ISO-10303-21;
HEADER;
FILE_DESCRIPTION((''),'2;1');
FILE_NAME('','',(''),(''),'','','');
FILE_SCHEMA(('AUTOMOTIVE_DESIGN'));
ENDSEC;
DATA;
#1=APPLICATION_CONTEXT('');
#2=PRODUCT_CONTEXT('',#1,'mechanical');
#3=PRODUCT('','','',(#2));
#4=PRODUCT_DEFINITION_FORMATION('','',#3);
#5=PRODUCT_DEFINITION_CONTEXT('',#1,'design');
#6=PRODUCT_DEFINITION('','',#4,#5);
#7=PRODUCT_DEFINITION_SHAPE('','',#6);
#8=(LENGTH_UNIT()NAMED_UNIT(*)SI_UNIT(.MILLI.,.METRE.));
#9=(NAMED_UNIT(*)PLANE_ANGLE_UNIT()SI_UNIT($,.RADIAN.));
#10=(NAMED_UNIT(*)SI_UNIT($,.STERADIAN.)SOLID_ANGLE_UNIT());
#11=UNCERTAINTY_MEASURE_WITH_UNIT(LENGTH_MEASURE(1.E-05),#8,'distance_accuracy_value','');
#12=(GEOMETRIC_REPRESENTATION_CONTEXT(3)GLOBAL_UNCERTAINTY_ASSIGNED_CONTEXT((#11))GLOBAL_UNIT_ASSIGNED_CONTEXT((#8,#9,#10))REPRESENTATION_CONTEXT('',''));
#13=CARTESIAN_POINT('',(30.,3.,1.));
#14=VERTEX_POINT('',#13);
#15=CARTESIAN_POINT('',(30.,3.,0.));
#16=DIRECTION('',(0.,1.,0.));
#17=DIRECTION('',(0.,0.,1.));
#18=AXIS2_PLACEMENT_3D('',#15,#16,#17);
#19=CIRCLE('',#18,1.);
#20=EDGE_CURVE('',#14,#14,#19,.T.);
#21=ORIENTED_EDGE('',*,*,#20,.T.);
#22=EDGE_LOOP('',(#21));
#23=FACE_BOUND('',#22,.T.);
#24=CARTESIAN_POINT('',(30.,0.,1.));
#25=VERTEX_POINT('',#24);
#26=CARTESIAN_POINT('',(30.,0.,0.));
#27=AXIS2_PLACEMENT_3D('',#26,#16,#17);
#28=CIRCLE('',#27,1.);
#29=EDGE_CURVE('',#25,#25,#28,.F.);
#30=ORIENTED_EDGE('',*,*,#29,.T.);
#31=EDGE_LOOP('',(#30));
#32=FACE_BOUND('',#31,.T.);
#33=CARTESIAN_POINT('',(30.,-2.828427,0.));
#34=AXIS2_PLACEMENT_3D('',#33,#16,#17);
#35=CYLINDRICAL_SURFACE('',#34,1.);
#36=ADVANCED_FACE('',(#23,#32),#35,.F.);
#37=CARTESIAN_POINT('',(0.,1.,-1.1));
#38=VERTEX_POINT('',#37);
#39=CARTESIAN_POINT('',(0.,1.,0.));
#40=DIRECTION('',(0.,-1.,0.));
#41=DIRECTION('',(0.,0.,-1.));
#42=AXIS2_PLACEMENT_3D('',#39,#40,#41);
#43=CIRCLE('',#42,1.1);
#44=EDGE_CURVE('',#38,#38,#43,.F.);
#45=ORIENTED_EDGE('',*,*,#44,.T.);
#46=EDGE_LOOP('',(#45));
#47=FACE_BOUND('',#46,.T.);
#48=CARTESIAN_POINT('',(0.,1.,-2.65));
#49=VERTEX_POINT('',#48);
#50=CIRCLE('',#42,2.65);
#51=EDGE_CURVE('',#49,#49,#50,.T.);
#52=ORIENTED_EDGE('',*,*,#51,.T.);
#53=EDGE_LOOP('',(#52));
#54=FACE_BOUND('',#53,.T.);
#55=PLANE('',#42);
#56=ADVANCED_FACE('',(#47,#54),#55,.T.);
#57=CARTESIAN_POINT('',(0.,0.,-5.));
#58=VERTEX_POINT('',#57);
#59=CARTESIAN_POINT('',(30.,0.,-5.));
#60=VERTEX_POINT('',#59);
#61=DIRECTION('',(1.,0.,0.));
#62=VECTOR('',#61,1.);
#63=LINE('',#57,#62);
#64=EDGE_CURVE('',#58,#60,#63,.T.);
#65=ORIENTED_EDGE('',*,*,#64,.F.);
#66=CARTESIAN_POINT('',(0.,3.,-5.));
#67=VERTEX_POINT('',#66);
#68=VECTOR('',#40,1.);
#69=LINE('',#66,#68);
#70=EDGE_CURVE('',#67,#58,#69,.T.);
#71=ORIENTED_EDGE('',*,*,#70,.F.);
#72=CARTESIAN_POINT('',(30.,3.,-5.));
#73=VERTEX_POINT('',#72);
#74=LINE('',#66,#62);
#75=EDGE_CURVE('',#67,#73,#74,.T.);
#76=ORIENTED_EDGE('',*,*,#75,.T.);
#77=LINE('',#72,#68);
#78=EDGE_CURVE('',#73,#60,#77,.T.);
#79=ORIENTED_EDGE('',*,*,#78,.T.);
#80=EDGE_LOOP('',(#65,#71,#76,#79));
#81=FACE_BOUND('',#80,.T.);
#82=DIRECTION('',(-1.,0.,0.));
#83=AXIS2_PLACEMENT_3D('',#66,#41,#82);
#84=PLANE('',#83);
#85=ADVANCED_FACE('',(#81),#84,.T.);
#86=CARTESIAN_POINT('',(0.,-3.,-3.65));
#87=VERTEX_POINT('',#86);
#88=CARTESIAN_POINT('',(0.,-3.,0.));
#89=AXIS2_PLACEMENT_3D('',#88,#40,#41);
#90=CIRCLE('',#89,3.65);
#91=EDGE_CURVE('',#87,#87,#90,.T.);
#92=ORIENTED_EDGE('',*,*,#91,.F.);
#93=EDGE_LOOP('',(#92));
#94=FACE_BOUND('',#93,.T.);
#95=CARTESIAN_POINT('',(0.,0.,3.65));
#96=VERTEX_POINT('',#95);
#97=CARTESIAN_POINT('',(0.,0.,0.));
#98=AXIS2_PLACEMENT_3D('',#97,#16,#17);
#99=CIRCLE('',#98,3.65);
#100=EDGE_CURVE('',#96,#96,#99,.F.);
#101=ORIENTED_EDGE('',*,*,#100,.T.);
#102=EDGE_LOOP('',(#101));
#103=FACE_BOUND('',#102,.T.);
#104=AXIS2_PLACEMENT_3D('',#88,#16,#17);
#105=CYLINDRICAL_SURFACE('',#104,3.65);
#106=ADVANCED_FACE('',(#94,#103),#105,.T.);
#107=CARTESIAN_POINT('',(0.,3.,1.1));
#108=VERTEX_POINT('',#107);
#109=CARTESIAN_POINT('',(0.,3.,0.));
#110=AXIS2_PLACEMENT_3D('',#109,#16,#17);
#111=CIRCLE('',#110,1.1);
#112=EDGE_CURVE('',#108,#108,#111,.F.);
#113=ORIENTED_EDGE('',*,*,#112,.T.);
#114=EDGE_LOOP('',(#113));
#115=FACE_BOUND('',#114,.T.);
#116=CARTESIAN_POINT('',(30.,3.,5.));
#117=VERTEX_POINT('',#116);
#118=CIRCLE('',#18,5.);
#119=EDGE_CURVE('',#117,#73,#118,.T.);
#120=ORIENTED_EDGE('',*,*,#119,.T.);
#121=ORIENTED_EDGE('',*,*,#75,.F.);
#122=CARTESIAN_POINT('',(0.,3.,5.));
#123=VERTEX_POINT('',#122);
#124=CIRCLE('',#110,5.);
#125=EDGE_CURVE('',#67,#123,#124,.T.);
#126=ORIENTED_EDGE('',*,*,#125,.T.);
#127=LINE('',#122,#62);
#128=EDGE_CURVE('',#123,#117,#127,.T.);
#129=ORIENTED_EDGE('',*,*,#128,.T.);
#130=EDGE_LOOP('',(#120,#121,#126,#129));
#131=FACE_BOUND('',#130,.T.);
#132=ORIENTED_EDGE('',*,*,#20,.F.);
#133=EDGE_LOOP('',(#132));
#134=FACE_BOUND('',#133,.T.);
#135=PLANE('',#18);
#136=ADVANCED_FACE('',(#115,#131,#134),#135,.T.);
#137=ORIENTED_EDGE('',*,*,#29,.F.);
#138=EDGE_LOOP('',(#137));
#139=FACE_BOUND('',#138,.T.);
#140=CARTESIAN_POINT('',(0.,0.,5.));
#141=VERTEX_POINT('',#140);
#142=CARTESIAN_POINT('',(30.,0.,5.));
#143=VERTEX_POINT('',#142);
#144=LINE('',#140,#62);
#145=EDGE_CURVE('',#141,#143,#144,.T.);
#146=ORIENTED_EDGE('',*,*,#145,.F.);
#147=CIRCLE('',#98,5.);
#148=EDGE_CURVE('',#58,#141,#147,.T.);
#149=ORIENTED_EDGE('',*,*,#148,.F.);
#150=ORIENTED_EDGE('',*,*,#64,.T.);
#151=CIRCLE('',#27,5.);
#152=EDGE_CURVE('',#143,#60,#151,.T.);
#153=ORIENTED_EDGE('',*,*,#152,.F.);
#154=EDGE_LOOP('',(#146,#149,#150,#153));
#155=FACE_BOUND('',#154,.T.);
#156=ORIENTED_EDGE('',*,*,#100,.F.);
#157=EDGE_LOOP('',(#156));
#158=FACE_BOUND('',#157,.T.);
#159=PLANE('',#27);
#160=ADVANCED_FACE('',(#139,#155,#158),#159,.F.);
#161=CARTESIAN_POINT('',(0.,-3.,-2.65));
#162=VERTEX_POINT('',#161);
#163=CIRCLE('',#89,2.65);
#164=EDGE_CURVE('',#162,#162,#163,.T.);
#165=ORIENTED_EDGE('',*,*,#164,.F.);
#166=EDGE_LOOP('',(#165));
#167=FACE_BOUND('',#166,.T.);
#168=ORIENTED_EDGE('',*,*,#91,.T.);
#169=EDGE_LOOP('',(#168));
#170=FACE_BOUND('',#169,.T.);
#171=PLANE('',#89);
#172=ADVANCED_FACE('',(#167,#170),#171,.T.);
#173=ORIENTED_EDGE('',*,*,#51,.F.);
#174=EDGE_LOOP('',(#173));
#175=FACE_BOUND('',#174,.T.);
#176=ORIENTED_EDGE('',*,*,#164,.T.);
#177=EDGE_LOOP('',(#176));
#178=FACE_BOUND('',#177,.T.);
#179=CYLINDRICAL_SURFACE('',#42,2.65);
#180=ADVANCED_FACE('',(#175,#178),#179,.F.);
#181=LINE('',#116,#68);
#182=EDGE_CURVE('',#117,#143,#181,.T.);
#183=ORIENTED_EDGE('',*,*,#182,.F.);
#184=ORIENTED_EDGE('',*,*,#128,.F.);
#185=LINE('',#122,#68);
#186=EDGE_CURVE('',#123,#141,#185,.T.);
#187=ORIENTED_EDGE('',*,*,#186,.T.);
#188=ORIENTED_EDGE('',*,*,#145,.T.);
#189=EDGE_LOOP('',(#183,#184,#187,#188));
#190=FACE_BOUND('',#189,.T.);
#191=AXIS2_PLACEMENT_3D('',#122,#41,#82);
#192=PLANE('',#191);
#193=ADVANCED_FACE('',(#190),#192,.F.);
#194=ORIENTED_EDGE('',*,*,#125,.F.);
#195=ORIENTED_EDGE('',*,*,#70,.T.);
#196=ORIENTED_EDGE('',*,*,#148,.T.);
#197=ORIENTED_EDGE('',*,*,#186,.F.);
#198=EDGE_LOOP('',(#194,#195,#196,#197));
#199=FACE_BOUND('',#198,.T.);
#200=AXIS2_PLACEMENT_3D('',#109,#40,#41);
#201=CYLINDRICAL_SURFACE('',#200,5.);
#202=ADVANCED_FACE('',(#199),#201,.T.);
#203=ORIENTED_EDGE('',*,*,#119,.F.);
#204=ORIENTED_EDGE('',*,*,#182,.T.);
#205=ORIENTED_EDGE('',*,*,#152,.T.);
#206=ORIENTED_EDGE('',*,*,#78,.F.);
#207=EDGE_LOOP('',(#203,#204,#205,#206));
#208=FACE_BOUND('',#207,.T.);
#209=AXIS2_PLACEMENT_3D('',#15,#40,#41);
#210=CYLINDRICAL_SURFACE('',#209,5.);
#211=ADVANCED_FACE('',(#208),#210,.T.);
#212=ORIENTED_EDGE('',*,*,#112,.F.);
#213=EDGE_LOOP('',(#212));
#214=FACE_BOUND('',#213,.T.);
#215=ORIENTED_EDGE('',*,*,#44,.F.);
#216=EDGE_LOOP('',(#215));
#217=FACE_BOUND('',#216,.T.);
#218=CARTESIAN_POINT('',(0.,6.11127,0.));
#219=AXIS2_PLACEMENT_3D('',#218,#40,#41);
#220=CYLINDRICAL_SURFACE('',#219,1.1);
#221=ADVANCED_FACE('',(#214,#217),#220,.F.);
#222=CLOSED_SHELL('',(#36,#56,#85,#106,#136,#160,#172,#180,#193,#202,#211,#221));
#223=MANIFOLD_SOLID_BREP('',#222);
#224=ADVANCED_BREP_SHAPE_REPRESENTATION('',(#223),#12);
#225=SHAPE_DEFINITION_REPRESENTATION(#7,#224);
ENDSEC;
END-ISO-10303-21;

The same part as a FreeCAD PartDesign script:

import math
import FreeCAD as App
import Part
import Sketcher

V = App.Vector

doc = App.newDocument("Part")
params = doc.addObject("Spreadsheet::Sheet", "Params")
for row, (alias, value) in enumerate([
    ("sketch1_radius", "5 mm"),
    ("sketch1_width", "30 mm"),
    ("pad1_length", "3 mm"),
    ("sketch2_diameter", "7.3 mm"),
    ("pad2_length", "3 mm"),
    ("sketch3_diameter", "2.2 mm"),
    ("pocket1_length", "6 mm"),
    ("sketch4_diameter", "5.3 mm"),
    ("pocket2_length", "4 mm"),
    ("sketch5_diameter", "2 mm"),
    ("pocket3_length", "3 mm"),
], start=1):
    params.set(f"A{row}", alias)
    params.set(f"B{row}", "=" + value)
    params.setAlias(f"B{row}", alias)

body = doc.addObject("PartDesign::Body", "Body")

# Sketch on XZ plane
sketch1 = body.newObject("Sketcher::SketchObject", "Sketch")
sketch1.AttachmentSupport = (doc.getObject("XZ_Plane"), [""])
sketch1.MapMode = "FlatFace"
sketch1.addGeometry([
    Part.LineSegment(V(30, -5, 0), V(0, -5, 0)),
    Part.ArcOfCircle(Part.Circle(V(0, 0, 0), V(0, 0, 1), 5), math.radians(90), math.radians(270)),
    Part.LineSegment(V(0, 5, 0), V(30, 5, 0)),
    Part.ArcOfCircle(Part.Circle(V(30, 0, 0), V(0, 0, 1), 5), math.radians(-90), math.radians(90)),
], False)
sketch1.addConstraint([
    Sketcher.Constraint("Tangent", 0, 2, 1, 2),
    Sketcher.Constraint("Tangent", 1, 1, 2, 1),
    Sketcher.Constraint("Tangent", 2, 2, 3, 2),
    Sketcher.Constraint("Tangent", 3, 1, 0, 1),
    Sketcher.Constraint("Horizontal", 0),
    Sketcher.Constraint("Horizontal", 2),
    Sketcher.Constraint("Coincident", 1, 3, -1, 1),
    Sketcher.Constraint("Radius", 1, 5.0),
    Sketcher.Constraint("DistanceX", 0, 2, 0, 1, 30.0),
])
sketch1.setExpression("Constraints[7]", "Params.sketch1_radius")
sketch1.setExpression("Constraints[8]", "Params.sketch1_width")
pad1 = body.newObject("PartDesign::Pad", "Pad")
pad1.Profile = sketch1
pad1.setExpression("Length", "Params.pad1_length")
pad1.Reversed = True

# Sketch on XZ plane
sketch2 = body.newObject("Sketcher::SketchObject", "Sketch001")
sketch2.AttachmentSupport = (doc.getObject("XZ_Plane"), [""])
sketch2.MapMode = "FlatFace"
sketch2.addGeometry(Part.Circle(V(0, 0, 0), V(0, 0, 1), 3.6), False)
sketch2.addConstraint([
    Sketcher.Constraint("Coincident", 0, 3, -1, 1),
    Sketcher.Constraint("Diameter", 0, 7.3),
])
sketch2.setExpression("Constraints[1]", "Params.sketch2_diameter")
pad2 = body.newObject("PartDesign::Pad", "Pad001")
pad2.Profile = sketch2
pad2.setExpression("Length", "Params.pad2_length")

# Sketch on XZ plane
sketch3 = body.newObject("Sketcher::SketchObject", "Sketch002")
sketch3.AttachmentSupport = (doc.getObject("XZ_Plane"), [""])
sketch3.MapMode = "FlatFace"
sketch3.AttachmentOffset = App.Placement(V(0, 0, 3), App.Rotation())
sketch3.addGeometry(Part.Circle(V(0, 0, 0), V(0, 0, 1), 1.1), False)
sketch3.addConstraint([
    Sketcher.Constraint("Coincident", 0, 3, -1, 1),
    Sketcher.Constraint("Diameter", 0, 2.2),
])
sketch3.setExpression("Constraints[1]", "Params.sketch3_diameter")
pocket1 = body.newObject("PartDesign::Pocket", "Pocket")
pocket1.Profile = sketch3
pocket1.setExpression("Length", "Params.pocket1_length")

# Sketch on XZ plane
sketch4 = body.newObject("Sketcher::SketchObject", "Sketch003")
sketch4.AttachmentSupport = (doc.getObject("XZ_Plane"), [""])
sketch4.MapMode = "FlatFace"
sketch4.AttachmentOffset = App.Placement(V(0, 0, 3), App.Rotation())
sketch4.addGeometry(Part.Circle(V(0, 0, 0), V(0, 0, 1), 2.6), False)
sketch4.addConstraint([
    Sketcher.Constraint("Coincident", 0, 3, -1, 1),
    Sketcher.Constraint("Diameter", 0, 5.3),
])
sketch4.setExpression("Constraints[1]", "Params.sketch4_diameter")
pocket2 = body.newObject("PartDesign::Pocket", "Pocket001")
pocket2.Profile = sketch4
pocket2.setExpression("Length", "Params.pocket2_length")

# Sketch on XZ plane
sketch5 = body.newObject("Sketcher::SketchObject", "Sketch004")
sketch5.AttachmentSupport = (doc.getObject("XZ_Plane"), [""])
sketch5.MapMode = "FlatFace"
sketch5.AttachmentOffset = App.Placement(V(0, 0, -3), App.Rotation())
sketch5.addGeometry(Part.Circle(V(30, 0, 0), V(0, 0, 1), 1), False)
sketch5.addConstraint([
    Sketcher.Constraint("PointOnObject", 0, 3, -1),
    Sketcher.Constraint("Diameter", 0, 2.0),
    Sketcher.Constraint("DistanceX", -1, 1, 0, 3, 30.0),
])
sketch5.setExpression("Constraints[1]", "Params.sketch5_diameter")
pocket3 = body.newObject("PartDesign::Pocket", "Pocket002")
pocket3.Profile = sketch5
pocket3.setExpression("Length", "Params.pocket3_length")
pocket3.Reversed = True

doc.recompute()
